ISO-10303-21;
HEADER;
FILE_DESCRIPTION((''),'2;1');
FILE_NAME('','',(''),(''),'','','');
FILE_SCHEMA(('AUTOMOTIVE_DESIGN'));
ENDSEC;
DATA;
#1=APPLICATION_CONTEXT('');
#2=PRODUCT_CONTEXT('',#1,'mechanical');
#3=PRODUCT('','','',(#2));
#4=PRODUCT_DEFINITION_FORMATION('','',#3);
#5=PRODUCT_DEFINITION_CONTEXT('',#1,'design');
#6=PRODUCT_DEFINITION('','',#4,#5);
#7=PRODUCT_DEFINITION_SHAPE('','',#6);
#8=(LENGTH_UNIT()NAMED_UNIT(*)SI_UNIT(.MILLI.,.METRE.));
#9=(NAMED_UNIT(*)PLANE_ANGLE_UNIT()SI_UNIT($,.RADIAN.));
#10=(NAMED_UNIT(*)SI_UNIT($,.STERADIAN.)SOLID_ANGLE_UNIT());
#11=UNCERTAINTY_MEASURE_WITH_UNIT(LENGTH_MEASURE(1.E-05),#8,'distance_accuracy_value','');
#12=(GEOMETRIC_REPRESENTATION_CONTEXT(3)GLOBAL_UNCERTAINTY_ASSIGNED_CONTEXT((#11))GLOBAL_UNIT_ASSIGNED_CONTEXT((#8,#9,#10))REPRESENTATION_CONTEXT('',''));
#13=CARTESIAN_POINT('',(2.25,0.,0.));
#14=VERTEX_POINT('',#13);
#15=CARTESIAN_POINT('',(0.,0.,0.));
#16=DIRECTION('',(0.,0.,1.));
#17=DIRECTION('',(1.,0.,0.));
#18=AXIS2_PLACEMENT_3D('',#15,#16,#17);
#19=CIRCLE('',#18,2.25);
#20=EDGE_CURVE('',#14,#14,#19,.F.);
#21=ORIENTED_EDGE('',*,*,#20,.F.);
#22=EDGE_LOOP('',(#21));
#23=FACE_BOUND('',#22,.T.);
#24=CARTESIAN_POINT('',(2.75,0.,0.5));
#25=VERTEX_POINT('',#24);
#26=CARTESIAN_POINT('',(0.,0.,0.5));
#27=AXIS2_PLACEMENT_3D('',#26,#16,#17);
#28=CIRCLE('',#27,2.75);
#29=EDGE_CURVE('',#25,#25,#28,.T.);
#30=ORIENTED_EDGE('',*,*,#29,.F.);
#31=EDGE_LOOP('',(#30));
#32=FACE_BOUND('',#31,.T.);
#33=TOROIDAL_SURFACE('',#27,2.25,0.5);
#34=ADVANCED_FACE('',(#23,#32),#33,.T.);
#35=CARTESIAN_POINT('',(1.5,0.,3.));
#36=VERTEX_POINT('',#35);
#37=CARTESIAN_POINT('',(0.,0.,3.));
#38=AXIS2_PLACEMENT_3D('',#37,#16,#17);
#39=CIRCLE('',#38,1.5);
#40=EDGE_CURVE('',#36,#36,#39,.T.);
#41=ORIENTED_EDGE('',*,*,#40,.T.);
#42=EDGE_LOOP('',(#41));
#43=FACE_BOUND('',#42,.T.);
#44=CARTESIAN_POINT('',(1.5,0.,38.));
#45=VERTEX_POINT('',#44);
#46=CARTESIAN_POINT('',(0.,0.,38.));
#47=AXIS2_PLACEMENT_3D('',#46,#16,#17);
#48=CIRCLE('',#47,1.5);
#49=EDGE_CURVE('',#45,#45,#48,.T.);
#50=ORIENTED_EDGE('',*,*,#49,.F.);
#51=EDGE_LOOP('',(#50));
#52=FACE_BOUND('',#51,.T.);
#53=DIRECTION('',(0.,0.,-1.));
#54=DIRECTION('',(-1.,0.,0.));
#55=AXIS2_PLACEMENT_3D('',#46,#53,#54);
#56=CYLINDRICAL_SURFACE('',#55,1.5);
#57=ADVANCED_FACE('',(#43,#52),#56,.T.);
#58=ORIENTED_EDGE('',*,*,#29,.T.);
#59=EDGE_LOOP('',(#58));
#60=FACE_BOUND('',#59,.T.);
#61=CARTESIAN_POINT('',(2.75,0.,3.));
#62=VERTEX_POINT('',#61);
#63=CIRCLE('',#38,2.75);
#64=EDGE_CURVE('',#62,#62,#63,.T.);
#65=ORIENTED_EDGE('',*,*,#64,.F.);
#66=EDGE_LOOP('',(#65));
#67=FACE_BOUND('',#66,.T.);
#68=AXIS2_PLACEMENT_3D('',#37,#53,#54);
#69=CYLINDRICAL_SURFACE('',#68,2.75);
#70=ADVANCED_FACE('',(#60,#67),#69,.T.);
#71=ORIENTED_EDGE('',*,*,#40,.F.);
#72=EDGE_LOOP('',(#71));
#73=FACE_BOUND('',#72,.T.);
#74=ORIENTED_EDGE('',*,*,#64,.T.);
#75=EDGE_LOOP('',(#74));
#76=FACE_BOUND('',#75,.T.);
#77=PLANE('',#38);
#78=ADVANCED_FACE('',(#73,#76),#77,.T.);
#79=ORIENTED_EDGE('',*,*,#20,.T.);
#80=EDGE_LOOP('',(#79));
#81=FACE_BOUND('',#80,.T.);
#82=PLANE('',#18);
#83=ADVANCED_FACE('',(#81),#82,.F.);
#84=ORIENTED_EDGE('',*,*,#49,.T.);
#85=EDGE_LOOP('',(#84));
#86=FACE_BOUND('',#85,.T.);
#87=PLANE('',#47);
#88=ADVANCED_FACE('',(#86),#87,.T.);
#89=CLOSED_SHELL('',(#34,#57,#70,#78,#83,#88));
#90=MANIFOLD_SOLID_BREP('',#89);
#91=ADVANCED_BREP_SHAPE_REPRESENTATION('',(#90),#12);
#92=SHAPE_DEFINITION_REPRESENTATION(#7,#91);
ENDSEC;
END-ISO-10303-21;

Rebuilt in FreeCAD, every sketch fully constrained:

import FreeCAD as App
import Part
import Sketcher

V = App.Vector
Q = App.Units.Quantity


def edges_at(feature, points):
    """Names of the edges that pass closest to the given points."""
    edges = feature.Shape.Edges
    near = lambda p: min(range(len(edges)), key=lambda i: edges[i].distToShape(Part.Vertex(*p))[0])
    return sorted({f"Edge{near(p) + 1}" for p in points})

doc = App.newDocument("Part")
params = doc.addObject("Spreadsheet::Sheet", "Params")
for row, (alias, value) in enumerate([
    ("sketch1_diameter", "5.5 mm"),
    ("pad1_length", "3 mm"),
    ("sketch2_diameter", "3 mm"),
    ("pad2_length", "35 mm"),
    ("fillet_radius", "0.5 mm"),
], start=1):
    params.set(f"A{row}", alias)
    params.set(f"B{row}", "=" + value)
    params.setAlias(f"B{row}", alias)

body = doc.addObject("PartDesign::Body", "Body")

sketch1 = doc.addObject("Sketcher::SketchObject", "Sketch")
body.addObject(sketch1)
sketch1.AttachmentSupport = (doc.XY_Plane, [""])
sketch1.MapMode = "FlatFace"
sketch1.addGeometry(Part.Circle(V(0, 0, 0), V(0, 0, 1), 2.8), False)
sketch1.addConstraint([
    Sketcher.Constraint("Coincident", 0, 3, -1, 1),
    Sketcher.Constraint("Diameter", 0, Q("5.5 mm")),
])
sketch1.setExpression("Constraints[1]", "Params.sketch1_diameter")
pad1 = doc.addObject("PartDesign::Pad", "Pad")
body.addObject(pad1)
pad1.Profile = sketch1
pad1.setExpression("Length", "Params.pad1_length")

sketch2 = doc.addObject("Sketcher::SketchObject", "Sketch001")
body.addObject(sketch2)
sketch2.AttachmentSupport = (doc.XY_Plane, [""])
sketch2.MapMode = "FlatFace"
sketch2.AttachmentOffset = App.Placement(V(0, 0, 3), App.Rotation())
sketch2.addGeometry(Part.Circle(V(0, 0, 0), V(0, 0, 1), 1.5), False)
sketch2.addConstraint([
    Sketcher.Constraint("Coincident", 0, 3, -1, 1),
    Sketcher.Constraint("Diameter", 0, Q("3 mm")),
])
sketch2.setExpression("Constraints[1]", "Params.sketch2_diameter")
pad2 = doc.addObject("PartDesign::Pad", "Pad001")
body.addObject(pad2)
pad2.Profile = sketch2
pad2.setExpression("Length", "Params.pad2_length")
doc.recompute()

fillet = doc.addObject("PartDesign::Fillet", "Fillet")
body.addObject(fillet)
fillet.Base = (pad2, edges_at(pad2, [(-2.75, 0, 0)]))
fillet.setExpression("Radius", "Params.fillet_radius")

doc.recompute()
